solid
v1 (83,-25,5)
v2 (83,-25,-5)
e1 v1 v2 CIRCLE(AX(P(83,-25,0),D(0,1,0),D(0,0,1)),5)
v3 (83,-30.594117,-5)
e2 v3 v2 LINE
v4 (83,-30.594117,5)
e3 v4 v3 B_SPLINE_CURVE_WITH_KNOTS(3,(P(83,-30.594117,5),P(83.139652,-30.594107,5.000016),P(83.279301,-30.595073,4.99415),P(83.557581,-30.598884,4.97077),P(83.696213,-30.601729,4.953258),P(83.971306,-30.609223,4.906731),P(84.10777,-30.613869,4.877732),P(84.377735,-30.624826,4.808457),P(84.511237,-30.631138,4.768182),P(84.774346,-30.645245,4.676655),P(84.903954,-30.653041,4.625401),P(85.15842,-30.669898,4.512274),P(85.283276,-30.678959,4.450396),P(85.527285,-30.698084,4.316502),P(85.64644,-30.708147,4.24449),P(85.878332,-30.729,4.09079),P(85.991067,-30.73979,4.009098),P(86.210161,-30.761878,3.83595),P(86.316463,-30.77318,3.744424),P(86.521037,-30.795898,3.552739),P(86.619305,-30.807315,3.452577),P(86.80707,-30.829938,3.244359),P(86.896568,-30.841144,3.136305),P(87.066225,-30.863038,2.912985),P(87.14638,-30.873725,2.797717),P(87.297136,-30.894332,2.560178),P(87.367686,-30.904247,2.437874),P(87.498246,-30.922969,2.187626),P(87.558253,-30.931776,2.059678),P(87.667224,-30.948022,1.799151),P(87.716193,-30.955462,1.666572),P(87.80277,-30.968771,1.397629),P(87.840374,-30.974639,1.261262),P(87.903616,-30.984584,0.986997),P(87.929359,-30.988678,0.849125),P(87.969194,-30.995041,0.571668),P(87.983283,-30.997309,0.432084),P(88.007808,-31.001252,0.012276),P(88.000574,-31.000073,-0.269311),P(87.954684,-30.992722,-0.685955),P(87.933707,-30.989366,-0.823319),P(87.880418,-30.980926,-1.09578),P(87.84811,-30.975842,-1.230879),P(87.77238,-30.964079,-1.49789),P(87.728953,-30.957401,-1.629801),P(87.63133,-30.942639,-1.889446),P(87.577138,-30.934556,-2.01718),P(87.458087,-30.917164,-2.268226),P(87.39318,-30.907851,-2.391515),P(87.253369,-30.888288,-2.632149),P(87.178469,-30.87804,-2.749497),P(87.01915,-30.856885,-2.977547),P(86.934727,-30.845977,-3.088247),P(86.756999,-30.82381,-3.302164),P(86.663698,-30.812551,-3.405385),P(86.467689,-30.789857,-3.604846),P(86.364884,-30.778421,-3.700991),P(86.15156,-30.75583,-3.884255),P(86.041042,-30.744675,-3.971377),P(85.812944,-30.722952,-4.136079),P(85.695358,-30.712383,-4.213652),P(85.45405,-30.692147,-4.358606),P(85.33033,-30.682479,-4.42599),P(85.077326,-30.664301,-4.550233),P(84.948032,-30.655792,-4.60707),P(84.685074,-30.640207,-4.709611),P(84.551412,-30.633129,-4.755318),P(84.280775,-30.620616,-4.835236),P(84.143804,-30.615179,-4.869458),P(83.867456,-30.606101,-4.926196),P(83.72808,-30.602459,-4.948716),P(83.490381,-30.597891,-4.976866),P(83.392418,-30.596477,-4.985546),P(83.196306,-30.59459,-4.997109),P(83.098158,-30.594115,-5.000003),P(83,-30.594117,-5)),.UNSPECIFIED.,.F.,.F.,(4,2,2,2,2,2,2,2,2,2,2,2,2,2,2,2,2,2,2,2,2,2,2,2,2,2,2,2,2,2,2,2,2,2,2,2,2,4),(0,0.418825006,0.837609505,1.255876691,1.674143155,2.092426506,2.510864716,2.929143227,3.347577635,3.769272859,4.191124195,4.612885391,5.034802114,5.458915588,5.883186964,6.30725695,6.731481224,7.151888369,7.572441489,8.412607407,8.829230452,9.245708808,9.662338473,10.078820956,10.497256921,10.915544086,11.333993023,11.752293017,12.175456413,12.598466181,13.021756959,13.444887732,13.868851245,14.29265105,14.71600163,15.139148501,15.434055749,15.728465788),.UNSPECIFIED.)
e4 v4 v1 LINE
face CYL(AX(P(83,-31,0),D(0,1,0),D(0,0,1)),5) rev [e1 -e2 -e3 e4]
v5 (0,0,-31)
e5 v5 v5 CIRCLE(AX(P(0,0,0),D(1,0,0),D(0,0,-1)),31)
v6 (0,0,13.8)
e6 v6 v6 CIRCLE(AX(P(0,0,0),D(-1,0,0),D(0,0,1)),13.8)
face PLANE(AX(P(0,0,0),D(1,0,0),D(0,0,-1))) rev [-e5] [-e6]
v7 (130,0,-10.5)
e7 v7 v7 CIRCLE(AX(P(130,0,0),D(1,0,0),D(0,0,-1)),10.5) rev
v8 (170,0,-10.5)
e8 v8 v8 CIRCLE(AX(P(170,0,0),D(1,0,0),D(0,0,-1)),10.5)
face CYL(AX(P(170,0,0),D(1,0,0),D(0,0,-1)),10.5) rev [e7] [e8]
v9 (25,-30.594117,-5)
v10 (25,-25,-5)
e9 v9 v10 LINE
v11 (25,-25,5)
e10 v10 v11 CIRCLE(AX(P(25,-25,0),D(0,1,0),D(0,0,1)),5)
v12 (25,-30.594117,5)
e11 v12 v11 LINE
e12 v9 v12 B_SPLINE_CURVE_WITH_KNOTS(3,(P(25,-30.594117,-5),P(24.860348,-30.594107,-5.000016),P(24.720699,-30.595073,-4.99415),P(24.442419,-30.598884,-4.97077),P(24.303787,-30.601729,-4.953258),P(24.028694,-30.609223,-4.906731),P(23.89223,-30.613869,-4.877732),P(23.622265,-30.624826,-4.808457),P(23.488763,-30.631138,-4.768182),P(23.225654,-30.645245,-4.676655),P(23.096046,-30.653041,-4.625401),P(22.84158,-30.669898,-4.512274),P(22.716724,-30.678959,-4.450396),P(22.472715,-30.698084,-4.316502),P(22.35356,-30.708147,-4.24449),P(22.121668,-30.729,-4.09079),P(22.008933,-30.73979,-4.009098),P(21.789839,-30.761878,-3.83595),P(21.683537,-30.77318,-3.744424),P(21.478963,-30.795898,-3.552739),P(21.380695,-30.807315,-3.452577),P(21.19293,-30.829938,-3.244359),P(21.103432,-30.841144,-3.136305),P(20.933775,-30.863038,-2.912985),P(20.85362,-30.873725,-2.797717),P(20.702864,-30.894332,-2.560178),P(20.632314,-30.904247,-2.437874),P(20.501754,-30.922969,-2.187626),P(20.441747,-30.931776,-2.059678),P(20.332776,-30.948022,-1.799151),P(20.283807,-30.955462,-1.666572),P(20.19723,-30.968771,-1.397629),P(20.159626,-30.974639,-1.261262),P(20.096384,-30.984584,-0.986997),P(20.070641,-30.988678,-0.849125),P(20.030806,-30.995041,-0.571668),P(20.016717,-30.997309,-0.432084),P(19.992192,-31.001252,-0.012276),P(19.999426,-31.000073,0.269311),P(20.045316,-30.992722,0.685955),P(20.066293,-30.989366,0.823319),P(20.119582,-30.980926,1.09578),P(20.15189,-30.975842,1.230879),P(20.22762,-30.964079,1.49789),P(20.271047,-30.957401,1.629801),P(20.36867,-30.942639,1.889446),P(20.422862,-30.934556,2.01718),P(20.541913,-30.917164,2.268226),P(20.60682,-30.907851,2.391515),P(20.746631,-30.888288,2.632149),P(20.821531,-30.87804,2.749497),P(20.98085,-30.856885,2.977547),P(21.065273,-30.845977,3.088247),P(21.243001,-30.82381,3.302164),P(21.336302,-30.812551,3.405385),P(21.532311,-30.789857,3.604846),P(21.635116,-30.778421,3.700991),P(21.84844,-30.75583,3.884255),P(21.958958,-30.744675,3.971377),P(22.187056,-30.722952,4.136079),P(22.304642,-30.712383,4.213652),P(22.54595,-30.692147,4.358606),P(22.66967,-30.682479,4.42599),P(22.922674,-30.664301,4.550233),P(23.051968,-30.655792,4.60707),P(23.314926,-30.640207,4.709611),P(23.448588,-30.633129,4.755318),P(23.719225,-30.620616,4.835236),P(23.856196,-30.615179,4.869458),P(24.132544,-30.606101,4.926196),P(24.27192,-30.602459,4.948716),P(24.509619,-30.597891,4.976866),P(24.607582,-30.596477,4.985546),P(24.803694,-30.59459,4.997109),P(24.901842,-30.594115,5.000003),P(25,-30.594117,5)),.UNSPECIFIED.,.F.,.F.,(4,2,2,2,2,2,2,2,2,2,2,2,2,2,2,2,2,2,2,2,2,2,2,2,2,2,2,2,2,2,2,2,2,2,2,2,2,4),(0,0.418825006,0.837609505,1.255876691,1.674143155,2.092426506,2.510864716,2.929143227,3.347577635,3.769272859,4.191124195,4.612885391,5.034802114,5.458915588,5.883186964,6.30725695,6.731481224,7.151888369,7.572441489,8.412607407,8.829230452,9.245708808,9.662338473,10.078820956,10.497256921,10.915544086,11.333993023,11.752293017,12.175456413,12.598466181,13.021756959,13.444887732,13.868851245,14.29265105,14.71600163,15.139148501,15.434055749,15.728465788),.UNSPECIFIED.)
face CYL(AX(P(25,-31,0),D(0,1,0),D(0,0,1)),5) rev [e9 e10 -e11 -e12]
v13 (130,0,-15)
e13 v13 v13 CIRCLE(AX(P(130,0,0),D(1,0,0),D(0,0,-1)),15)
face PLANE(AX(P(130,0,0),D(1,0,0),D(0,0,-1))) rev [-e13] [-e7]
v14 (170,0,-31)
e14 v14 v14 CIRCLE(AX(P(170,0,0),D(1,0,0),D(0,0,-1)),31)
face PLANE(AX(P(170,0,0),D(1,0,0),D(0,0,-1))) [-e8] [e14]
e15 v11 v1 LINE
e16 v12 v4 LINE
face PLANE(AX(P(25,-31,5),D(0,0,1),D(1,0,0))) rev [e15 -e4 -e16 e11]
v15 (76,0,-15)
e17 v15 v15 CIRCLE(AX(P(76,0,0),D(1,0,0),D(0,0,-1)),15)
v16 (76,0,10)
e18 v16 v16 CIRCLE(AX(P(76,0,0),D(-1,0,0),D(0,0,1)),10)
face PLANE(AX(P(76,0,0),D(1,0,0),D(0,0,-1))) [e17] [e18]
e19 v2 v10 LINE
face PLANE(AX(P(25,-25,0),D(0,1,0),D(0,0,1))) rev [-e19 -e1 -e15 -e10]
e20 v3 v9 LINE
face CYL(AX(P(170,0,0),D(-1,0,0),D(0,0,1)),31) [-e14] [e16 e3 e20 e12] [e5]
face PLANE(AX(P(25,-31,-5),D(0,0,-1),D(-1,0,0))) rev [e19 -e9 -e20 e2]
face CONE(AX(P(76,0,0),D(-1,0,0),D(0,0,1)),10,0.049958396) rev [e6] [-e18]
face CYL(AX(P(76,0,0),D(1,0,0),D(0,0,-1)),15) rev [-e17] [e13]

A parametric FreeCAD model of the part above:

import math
import FreeCAD as App
import Part
import Sketcher

V = App.Vector
Q = App.Units.Quantity


def add_polygon(sketch, points):
    """Adds a closed chain of lines whose ends are joined by coincident constraints."""
    first, n = sketch.GeometryCount, len(points)
    for a, b in zip(points, points[1:] + points[:1]):
        sketch.addGeometry(Part.LineSegment(App.Vector(*a, 0), App.Vector(*b, 0)), False)
    for i in range(n):
        sketch.addConstraint(Sketcher.Constraint("Coincident", first + i, 2, first + (i + 1) % n, 1))

doc = App.newDocument("Part")
params = doc.addObject("Spreadsheet::Sheet", "Params")
for row, (alias, value) in enumerate([
    ("sketch1_diameter", "62 mm"),
    ("pad1_length", "170 mm"),
    ("sketch2_diameter", "21 mm"),
    ("hole_diameter", "21 mm"),
    ("hole_depth", "40 mm"),
    ("sketch3_diameter", "30 mm"),
    ("pocket1_length", "54 mm"),
    ("sketch4_width", "76 mm"),
    ("sketch4_height", "10 mm"),
    ("sketch4_height2", "13.8 mm"),
    ("groove_angle", "360 deg"),
    ("sketch5_radius", "5 mm"),
    ("sketch5_width", "58 mm"),
], start=1):
    params.set(f"A{row}", alias)
    params.set(f"B{row}", "=" + value)
    params.setAlias(f"B{row}", alias)

body = doc.addObject("PartDesign::Body", "Body")

# Sketch on YZ plane
sketch1 = body.newObject("Sketcher::SketchObject", "Sketch")
sketch1.AttachmentSupport = (doc.getObject("YZ_Plane"), [""])
sketch1.MapMode = "FlatFace"
sketch1.addGeometry(Part.Circle(V(0, 0, 0), V(0, 0, 1), 31), False)
sketch1.addConstraint(Sketcher.Constraint("Coincident", 0, 3, -1, 1))
sketch1.addConstraint(Sketcher.Constraint("Diameter", 0, Q("62 mm")))
sketch1.setExpression("Constraints[1]", "Params.sketch1_diameter")
pad1 = body.newObject("PartDesign::Pad", "Pad")
pad1.Profile = sketch1
pad1.setExpression("Length", "Params.pad1_length")

# Sketch on YZ plane
sketch2 = body.newObject("Sketcher::SketchObject", "Sketch001")
sketch2.AttachmentSupport = (doc.getObject("YZ_Plane"), [""])
sketch2.MapMode = "FlatFace"
sketch2.AttachmentOffset = App.Placement(V(0, 0, 170), App.Rotation())
sketch2.addGeometry(Part.Circle(V(0, 0, 0), V(0, 0, 1), 10.5), False)
sketch2.addConstraint(Sketcher.Constraint("Coincident", 0, 3, -1, 1))
sketch2.addConstraint(Sketcher.Constraint("Diameter", 0, Q("21 mm")))
sketch2.setExpression("Constraints[1]", "Params.sketch2_diameter")
doc.recompute()
hole = body.newObject("PartDesign::Hole", "Hole")
hole.Profile = sketch2
hole.ThreadType = "None"
hole.setExpression("Diameter", "Params.hole_diameter")
hole.DepthType = "Dimension"
hole.setExpression("Depth", "Params.hole_depth")
hole.DrillPoint = "Angled"
hole.DrillPointAngle = 118

# Sketch on YZ plane
sketch3 = body.newObject("Sketcher::SketchObject", "Sketch002")
sketch3.AttachmentSupport = (doc.getObject("YZ_Plane"), [""])
sketch3.MapMode = "FlatFace"
sketch3.AttachmentOffset = App.Placement(V(0, 0, 130), App.Rotation())
sketch3.addGeometry(Part.Circle(V(0, 0, 0), V(0, 0, 1), 15), False)
sketch3.addConstraint(Sketcher.Constraint("Coincident", 0, 3, -1, 1))
sketch3.addConstraint(Sketcher.Constraint("Diameter", 0, Q("30 mm")))
sketch3.setExpression("Constraints[1]", "Params.sketch3_diameter")
pocket1 = body.newObject("PartDesign::Pocket", "Pocket")
pocket1.Profile = sketch3
pocket1.setExpression("Length", "Params.pocket1_length")

# Sketch on XY plane
sketch4 = body.newObject("Sketcher::SketchObject", "Sketch003")
sketch4.AttachmentSupport = (doc.getObject("XY_Plane"), [""])
sketch4.MapMode = "FlatFace"
add_polygon(sketch4, [(0, 0), (76, 0), (76, 10), (0, 13.8)])  # lines 0-3
sketch4.addConstraint(Sketcher.Constraint("Horizontal", 0))
sketch4.addConstraint(Sketcher.Constraint("Vertical", 1))
sketch4.addConstraint(Sketcher.Constraint("Vertical", 3))
sketch4.addConstraint(Sketcher.Constraint("Coincident", 3, 2, -1, 1))
sketch4.addConstraint(Sketcher.Constraint("DistanceX", 0, 1, 0, 2, Q("76 mm")))
sketch4.addConstraint(Sketcher.Constraint("DistanceY", 1, 1, 1, 2, Q("10 mm")))
sketch4.addConstraint(Sketcher.Constraint("DistanceY", 3, 2, 3, 1, Q("13.8 mm")))
sketch4.setExpression("Constraints[8]", "Params.sketch4_width")
sketch4.setExpression("Constraints[9]", "Params.sketch4_height")
sketch4.setExpression("Constraints[10]", "Params.sketch4_height2")
groove = body.newObject("PartDesign::Groove", "Groove")
groove.Profile = sketch4
groove.ReferenceAxis = (sketch4, ["H_Axis"])
groove.setExpression("Angle", "Params.groove_angle")

# Sketch on XZ plane
sketch5 = body.newObject("Sketcher::SketchObject", "Sketch004")
sketch5.AttachmentSupport = (doc.getObject("XZ_Plane"), [""])
sketch5.MapMode = "FlatFace"
sketch5.AttachmentOffset = App.Placement(V(0, 0, 25), App.Rotation())
sketch5.addGeometry(Part.LineSegment(V(83, -5, 0), V(25, -5, 0)), False)
sketch5.addGeometry(Part.ArcOfCircle(Part.Circle(V(25, 0, 0), V(0, 0, 1), 5), math.radians(90), math.radians(270)), False)
sketch5.addGeometry(Part.LineSegment(V(25, 5, 0), V(83, 5, 0)), False)
sketch5.addGeometry(Part.ArcOfCircle(Part.Circle(V(83, 0, 0), V(0, 0, 1), 5), math.radians(-90), math.radians(90)), False)
sketch5.addConstraint(Sketcher.Constraint("Tangent", 0, 2, 1, 2))
sketch5.addConstraint(Sketcher.Constraint("Tangent", 1, 1, 2, 1))
sketch5.addConstraint(Sketcher.Constraint("Tangent", 2, 2, 3, 2))
sketch5.addConstraint(Sketcher.Constraint("Tangent", 3, 1, 0, 1))
sketch5.addConstraint(Sketcher.Constraint("Horizontal", 0))
sketch5.addConstraint(Sketcher.Constraint("Horizontal", 2))
sketch5.addConstraint(Sketcher.Constraint("PointOnObject", 1, 3, -1))
sketch5.addConstraint(Sketcher.Constraint("Radius", 1, Q("5 mm")))
sketch5.addConstraint(Sketcher.Constraint("DistanceX", 0, 2, 0, 1, Q("58 mm")))
sketch5.addConstraint(Sketcher.Constraint("DistanceX", -1, 1, 1, 3, Q("25 mm")))
sketch5.setExpression("Constraints[7]", "Params.sketch5_radius")
sketch5.setExpression("Constraints[8]", "Params.sketch5_width")
pocket2 = body.newObject("PartDesign::Pocket", "Pocket001")
pocket2.Profile = sketch5
pocket2.Type = "ThroughAll"
pocket2.Reversed = True

doc.recompute()
